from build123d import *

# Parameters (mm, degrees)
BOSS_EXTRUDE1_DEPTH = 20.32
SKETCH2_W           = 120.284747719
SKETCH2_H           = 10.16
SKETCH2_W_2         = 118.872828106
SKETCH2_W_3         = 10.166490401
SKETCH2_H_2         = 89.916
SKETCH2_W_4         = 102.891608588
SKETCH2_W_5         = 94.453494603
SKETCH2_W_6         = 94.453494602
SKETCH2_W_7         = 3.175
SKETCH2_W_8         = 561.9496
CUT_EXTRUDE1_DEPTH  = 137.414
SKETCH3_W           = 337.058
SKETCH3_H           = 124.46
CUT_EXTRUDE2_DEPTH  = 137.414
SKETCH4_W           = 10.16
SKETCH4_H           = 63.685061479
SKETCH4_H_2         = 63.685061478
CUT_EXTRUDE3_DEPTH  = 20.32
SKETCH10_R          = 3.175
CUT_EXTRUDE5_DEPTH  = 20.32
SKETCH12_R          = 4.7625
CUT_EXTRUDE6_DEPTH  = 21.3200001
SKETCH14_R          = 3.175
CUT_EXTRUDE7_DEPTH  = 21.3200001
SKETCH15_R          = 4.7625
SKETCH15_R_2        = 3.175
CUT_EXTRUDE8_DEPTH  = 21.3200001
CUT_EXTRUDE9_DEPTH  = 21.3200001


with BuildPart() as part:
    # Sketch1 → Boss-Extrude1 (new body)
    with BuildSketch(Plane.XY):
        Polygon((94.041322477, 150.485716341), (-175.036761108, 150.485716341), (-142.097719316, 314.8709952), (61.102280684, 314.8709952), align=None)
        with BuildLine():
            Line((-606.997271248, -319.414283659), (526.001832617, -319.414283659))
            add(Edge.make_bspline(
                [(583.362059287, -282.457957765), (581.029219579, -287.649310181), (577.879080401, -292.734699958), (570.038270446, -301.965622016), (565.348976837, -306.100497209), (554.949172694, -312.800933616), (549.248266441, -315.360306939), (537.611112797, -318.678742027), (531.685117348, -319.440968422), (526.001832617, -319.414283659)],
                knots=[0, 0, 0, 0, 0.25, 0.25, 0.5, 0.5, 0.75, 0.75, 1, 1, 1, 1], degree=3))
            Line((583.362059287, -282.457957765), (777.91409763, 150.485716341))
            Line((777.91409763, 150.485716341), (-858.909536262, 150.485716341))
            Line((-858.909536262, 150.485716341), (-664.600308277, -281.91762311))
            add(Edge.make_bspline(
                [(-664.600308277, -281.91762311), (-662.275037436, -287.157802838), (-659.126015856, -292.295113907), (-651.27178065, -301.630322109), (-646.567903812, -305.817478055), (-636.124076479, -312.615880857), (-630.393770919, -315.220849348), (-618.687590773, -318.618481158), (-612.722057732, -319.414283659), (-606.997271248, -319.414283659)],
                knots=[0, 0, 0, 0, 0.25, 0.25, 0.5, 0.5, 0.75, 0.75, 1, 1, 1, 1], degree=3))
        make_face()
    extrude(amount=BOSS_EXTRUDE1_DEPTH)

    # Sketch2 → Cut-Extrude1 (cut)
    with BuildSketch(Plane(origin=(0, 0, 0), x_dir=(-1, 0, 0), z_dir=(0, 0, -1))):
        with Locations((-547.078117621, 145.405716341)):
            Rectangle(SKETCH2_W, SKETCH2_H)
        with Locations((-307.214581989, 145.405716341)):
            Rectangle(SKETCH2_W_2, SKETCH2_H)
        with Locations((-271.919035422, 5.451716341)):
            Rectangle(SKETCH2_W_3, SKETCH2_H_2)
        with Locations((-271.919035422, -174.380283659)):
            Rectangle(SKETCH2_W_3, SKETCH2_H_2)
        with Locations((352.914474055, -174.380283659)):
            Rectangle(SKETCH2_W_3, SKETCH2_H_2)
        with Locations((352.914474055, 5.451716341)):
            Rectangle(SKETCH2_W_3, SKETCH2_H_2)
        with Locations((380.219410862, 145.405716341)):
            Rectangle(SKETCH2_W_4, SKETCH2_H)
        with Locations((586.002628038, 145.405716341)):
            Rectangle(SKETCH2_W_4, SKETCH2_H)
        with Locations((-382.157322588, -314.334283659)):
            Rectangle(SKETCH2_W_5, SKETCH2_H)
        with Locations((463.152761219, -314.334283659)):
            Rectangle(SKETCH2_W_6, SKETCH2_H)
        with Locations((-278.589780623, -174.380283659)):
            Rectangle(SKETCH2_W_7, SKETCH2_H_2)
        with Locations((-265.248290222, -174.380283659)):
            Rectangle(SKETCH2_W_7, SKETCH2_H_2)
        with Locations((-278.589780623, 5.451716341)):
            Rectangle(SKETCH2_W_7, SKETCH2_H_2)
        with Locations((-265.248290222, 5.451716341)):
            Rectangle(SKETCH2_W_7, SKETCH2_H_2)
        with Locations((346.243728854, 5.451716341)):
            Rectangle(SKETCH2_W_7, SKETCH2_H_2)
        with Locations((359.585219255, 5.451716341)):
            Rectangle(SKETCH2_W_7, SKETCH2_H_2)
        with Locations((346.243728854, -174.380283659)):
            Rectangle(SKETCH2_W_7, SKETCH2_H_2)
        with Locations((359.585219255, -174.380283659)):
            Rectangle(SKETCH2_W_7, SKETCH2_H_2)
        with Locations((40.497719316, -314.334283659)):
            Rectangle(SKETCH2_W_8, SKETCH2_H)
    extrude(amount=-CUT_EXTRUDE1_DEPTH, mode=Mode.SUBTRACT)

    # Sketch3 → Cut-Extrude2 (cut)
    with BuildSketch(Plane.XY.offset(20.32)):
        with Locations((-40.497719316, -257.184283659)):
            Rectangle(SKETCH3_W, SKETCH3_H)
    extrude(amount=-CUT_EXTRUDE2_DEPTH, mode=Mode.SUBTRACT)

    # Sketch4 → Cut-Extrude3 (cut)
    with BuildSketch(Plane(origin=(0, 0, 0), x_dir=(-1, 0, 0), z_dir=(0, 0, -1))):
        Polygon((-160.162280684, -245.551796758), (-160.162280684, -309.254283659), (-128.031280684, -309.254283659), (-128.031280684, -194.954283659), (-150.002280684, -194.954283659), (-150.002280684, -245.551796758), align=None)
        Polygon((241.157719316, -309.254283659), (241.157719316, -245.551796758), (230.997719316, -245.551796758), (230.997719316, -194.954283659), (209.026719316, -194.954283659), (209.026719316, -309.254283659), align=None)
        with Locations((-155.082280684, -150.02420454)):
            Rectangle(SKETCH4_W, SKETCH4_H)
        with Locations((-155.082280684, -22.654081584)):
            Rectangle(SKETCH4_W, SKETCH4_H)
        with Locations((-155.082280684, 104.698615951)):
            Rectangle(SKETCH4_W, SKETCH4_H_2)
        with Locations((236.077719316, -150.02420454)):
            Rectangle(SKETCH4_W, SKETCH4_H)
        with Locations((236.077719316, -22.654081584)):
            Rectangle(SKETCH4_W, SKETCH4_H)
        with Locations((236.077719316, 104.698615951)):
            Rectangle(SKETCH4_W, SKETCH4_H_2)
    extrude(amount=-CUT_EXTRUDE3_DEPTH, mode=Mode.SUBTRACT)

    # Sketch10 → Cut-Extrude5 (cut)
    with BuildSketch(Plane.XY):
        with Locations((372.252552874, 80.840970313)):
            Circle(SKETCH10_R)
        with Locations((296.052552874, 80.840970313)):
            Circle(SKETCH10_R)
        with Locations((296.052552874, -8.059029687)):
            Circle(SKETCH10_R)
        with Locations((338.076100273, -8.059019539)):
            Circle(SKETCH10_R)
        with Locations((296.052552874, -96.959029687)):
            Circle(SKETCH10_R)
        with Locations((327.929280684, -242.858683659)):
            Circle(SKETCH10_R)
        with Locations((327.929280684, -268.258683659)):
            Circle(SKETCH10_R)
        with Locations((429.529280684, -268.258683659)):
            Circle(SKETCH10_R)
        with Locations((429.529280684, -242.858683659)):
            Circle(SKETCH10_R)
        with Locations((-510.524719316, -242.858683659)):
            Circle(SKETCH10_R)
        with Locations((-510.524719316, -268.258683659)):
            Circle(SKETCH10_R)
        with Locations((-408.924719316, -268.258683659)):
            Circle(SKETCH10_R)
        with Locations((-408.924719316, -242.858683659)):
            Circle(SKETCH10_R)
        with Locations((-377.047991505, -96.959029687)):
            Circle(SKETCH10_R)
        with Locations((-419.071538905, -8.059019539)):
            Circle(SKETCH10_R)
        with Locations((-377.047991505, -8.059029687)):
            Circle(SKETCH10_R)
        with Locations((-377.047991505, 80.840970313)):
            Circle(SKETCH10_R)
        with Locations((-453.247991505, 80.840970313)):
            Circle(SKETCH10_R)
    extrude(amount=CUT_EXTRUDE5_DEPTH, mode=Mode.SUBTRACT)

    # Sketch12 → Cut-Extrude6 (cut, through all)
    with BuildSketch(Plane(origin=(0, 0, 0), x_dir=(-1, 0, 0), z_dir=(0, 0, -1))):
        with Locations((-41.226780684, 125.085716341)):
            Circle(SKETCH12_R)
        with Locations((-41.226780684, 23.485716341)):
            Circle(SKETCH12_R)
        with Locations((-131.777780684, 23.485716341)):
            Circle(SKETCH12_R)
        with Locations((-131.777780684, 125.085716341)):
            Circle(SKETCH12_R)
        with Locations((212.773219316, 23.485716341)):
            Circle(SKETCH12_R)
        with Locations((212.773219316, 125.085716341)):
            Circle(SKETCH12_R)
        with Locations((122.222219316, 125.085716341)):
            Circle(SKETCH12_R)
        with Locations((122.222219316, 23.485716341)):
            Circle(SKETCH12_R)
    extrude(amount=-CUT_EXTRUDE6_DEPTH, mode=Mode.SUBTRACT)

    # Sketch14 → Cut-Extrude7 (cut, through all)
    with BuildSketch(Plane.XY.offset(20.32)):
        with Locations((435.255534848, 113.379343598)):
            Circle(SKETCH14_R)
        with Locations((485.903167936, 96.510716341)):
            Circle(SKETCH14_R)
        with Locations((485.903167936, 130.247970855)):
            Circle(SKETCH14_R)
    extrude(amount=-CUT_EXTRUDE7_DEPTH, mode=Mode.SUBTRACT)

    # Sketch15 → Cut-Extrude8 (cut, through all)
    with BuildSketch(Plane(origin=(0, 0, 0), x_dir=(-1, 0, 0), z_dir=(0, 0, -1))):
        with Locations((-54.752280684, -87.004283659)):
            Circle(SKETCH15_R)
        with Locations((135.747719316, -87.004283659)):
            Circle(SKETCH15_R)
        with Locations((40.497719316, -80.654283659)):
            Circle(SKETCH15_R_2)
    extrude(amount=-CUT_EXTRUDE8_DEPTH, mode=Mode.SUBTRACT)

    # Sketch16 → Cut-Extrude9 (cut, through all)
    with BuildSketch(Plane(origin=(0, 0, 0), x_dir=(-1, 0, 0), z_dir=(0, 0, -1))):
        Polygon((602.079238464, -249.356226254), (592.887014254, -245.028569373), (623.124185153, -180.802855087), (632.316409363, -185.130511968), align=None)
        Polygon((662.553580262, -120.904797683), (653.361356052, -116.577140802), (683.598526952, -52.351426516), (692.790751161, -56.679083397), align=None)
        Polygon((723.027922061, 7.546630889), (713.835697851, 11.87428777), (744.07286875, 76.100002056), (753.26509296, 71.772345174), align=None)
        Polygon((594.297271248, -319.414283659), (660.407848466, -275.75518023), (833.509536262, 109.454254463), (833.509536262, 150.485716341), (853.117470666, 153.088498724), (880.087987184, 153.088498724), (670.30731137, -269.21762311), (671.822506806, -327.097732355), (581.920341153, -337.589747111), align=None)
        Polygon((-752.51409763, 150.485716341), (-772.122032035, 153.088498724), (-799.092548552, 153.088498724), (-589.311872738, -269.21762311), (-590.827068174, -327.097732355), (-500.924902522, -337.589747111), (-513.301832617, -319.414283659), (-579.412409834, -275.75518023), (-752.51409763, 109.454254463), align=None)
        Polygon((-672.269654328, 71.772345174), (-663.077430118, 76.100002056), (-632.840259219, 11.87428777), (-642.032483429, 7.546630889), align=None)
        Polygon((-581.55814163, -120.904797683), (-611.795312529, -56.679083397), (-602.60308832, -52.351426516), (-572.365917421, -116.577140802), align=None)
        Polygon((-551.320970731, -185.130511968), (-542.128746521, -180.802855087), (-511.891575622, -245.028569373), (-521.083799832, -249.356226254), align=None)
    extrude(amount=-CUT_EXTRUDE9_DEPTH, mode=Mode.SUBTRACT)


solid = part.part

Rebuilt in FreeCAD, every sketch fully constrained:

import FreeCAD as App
import Part
import Sketcher

V = App.Vector
Q = App.Units.Quantity


def add_polygon(sketch, points):
    """Adds a closed chain of lines whose ends are joined by coincident constraints."""
    first, n = sketch.GeometryCount, len(points)
    for a, b in zip(points, points[1:] + points[:1]):
        sketch.addGeometry(Part.LineSegment(App.Vector(*a, 0), App.Vector(*b, 0)), False)
    for i in range(n):
        sketch.addConstraint(Sketcher.Constraint("Coincident", first + i, 2, first + (i + 1) % n, 1))

doc = App.newDocument("Part")
body = doc.addObject("PartDesign::Body", "Body")

# Sketch on XY plane
sketch1 = body.newObject("Sketcher::SketchObject", "Sketch")
sketch1.AttachmentSupport = (doc.getObject("XY_Plane"), [""])
sketch1.MapMode = "FlatFace"
sketch1.addGeometry([
    Part.LineSegment(V(-142.097719, 314.870995, 0), V(-175.036761, 150.485716, 0)),  # 0
    Part.LineSegment(V(-175.036761, 150.485716, 0), V(-858.909536, 150.485716, 0)),  # 1
    Part.LineSegment(V(-858.909536, 150.485716, 0), V(-664.600308, -281.917623, 0)),  # 2
    Part.BSplineCurve([V(-664.600308, -281.917623, 0), V(-662.275037, -287.157803, 0), V(-659.126016, -292.295114, 0), V(-651.271781, -301.630322, 0), V(-646.567904, -305.817478, 0), V(-636.124076, -312.615881, 0), V(-630.393771, -315.220849, 0), V(-618.687591, -318.618481, 0), V(-612.722058, -319.414284, 0), V(-606.997271, -319.414284, 0)], [4, 2, 2, 2, 4], [0, 0.25, 0.5, 0.75, 1], False, 3, [1, 1, 1, 1, 1, 1, 1, 1, 1, 1], False),  # 3
    Part.LineSegment(V(-606.997271, -319.414284, 0), V(526.001833, -319.414284, 0)),  # 4
    Part.BSplineCurve([V(583.362059, -282.457958, 0), V(581.02922, -287.64931, 0), V(577.87908, -292.7347, 0), V(570.03827, -301.965622, 0), V(565.348977, -306.100497, 0), V(554.949173, -312.800934, 0), V(549.248266, -315.360307, 0), V(537.611113, -318.678742, 0), V(531.685117, -319.440968, 0), V(526.001833, -319.414284, 0)], [4, 2, 2, 2, 4], [0, 0.25, 0.5, 0.75, 1], False, 3, [1, 1, 1, 1, 1, 1, 1, 1, 1, 1], False),  # 5
    Part.LineSegment(V(583.362059, -282.457958, 0), V(777.914098, 150.485716, 0)),  # 6
    Part.LineSegment(V(777.914098, 150.485716, 0), V(94.041322, 150.485716, 0)),  # 7
    Part.LineSegment(V(94.041322, 150.485716, 0), V(61.102281, 314.870995, 0)),  # 8
    Part.LineSegment(V(61.102281, 314.870995, 0), V(-142.097719, 314.870995, 0)),  # 9
], False)
sketch1.addConstraint([
    Sketcher.Constraint("Block", 3),
    Sketcher.Constraint("Block", 5),
    Sketcher.Constraint("Coincident", 0, 2, 1, 1),
    Sketcher.Constraint("Coincident", 1, 2, 2, 1),
    Sketcher.Constraint("Coincident", 2, 2, 3, 1),
    Sketcher.Constraint("Coincident", 3, 2, 4, 1),
    Sketcher.Constraint("Coincident", 4, 2, 5, 2),
    Sketcher.Constraint("Coincident", 5, 1, 6, 1),
    Sketcher.Constraint("Coincident", 6, 2, 7, 1),
    Sketcher.Constraint("Coincident", 7, 2, 8, 1),
    Sketcher.Constraint("Coincident", 8, 2, 9, 1),
    Sketcher.Constraint("Coincident", 9, 2, 0, 1),
    Sketcher.Constraint("Horizontal", 1),
    Sketcher.Constraint("Horizontal", 7),
    Sketcher.Constraint("Horizontal", 9),
    Sketcher.Constraint("Horizontal", 1, 2, 6, 2),
    Sketcher.Constraint("Equal", 1, 7),
    Sketcher.Constraint("Equal", 0, 8),
    Sketcher.Constraint("DistanceX", 9, 2, 9, 1, Q("8 in")),
    Sketcher.Constraint("DistanceY", 4, 2, 0, 2, Q("18.5 in")),
    Sketcher.Constraint("DistanceX", 1, 2, 1, 1, Q("683.872775 mm")),
    Sketcher.Constraint("DistanceX", 0, 2, -1, 1, Q("175.036761 mm")),
    Sketcher.Constraint("DistanceX", -1, 1, 8, 2, Q("61.102281 mm")),
    Sketcher.Constraint("DistanceY", 7, 2, 8, 2, Q("164.385279 mm")),
])
pad1 = body.newObject("PartDesign::Pad", "Pad")
pad1.Profile = sketch1
pad1.Length = Q("0.8 in")

# Sketch on XY plane
sketch2 = body.newObject("Sketcher::SketchObject", "Sketch001")
sketch2.AttachmentSupport = (doc.getObject("XY_Plane"), [""])
sketch2.MapMode = "FlatFace"
add_polygon(sketch2, [(607, 150), (607, 140), (487, 140), (487, 150)])  # lines 0-3
add_polygon(sketch2, [(367, 150), (367, 140), (248, 140), (248, 150)])  # lines 4-7
add_polygon(sketch2, [(280, 50), (280, -40), (264, -40), (264, 50)])  # lines 8-11
add_polygon(sketch2, [(280, -129), (280, -219), (264, -219), (264, -129)])  # lines 12-15
add_polygon(sketch2, [(-345, -129), (-345, -219), (-361, -219), (-361, -129)])  # lines 16-19
add_polygon(sketch2, [(-345, 50), (-345, -40), (-361, -40), (-361, 50)])  # lines 20-23
add_polygon(sketch2, [(-329, 150), (-329, 140), (-432, 140), (-432, 150)])  # lines 24-27
add_polygon(sketch2, [(-535, 150), (-535, 140), (-637, 140), (-637, 150)])  # lines 28-31
add_polygon(sketch2, [(429, -309), (429, -319), (335, -319), (335, -309)])  # lines 32-35
add_polygon(sketch2, [(-416, -309), (-416, -319), (-510, -319), (-510, -309)])  # lines 36-39
add_polygon(sketch2, [(240, -309), (240, -319), (-321, -319), (-321, -309)])  # lines 40-43
sketch2.addConstraint([
    Sketcher.Constraint("Vertical", 0),
    Sketcher.Constraint("Horizontal", 1),
    Sketcher.Constraint("Vertical", 2),
    Sketcher.Constraint("Horizontal", 3),
    Sketcher.Constraint("Vertical", 4),
    Sketcher.Constraint("Horizontal", 5),
    Sketcher.Constraint("Vertical", 6),
    Sketcher.Constraint("Horizontal", 7),
    Sketcher.Constraint("Vertical", 8),
    Sketcher.Constraint("Horizontal", 9),
    Sketcher.Constraint("Vertical", 10),
    Sketcher.Constraint("Horizontal", 11),
    Sketcher.Constraint("Vertical", 12),
    Sketcher.Constraint("Horizontal", 13),
    Sketcher.Constraint("Vertical", 14),
    Sketcher.Constraint("Horizontal", 15),
    Sketcher.Constraint("Vertical", 16),
    Sketcher.Constraint("Horizontal", 17),
    Sketcher.Constraint("Vertical", 18),
    Sketcher.Constraint("Horizontal", 19),
    Sketcher.Constraint("Vertical", 20),
    Sketcher.Constraint("Horizontal", 21),
    Sketcher.Constraint("Vertical", 22),
    Sketcher.Constraint("Horizontal", 23),
    Sketcher.Constraint("Vertical", 24),
    Sketcher.Constraint("Horizontal", 25),
    Sketcher.Constraint("Vertical", 26),
    Sketcher.Constraint("Horizontal", 27),
    Sketcher.Constraint("Vertical", 28),
    Sketcher.Constraint("Horizontal", 29),
    Sketcher.Constraint("Vertical", 30),
    Sketcher.Constraint("Horizontal", 31),
    Sketcher.Constraint("Vertical", 32),
    Sketcher.Constraint("Horizontal", 33),
    Sketcher.Constraint("Vertical", 34),
    Sketcher.Constraint("Horizontal", 35),
    Sketcher.Constraint("Vertical", 36),
    Sketcher.Constraint("Horizontal", 37),
    Sketcher.Constraint("Vertical", 38),
    Sketcher.Constraint("Horizontal", 39),
    Sketcher.Constraint("Vertical", 40),
    Sketcher.Constraint("Horizontal", 41),
    Sketcher.Constraint("Vertical", 42),
    Sketcher.Constraint("Horizontal", 43),
    Sketcher.Constraint("Horizontal", 1, 2, 4, 2),
    Sketcher.Constraint("Horizontal", 3, 2, 6, 2),
    Sketcher.Constraint("Horizontal", 13, 2, 16, 2),
    Sketcher.Constraint("Horizontal", 15, 2, 18, 2),
    Sketcher.Constraint("Horizontal", 9, 2, 20, 2),
    Sketcher.Constraint("Horizontal", 11, 2, 22, 2),
    Sketcher.Constraint("Horizontal", 5, 2, 24, 2),
    Sketcher.Constraint("Horizontal", 7, 2, 26, 2),
    Sketcher.Constraint("Horizontal", 25, 2, 28, 2),
    Sketcher.Constraint("Horizontal", 27, 2, 30, 2),
    Sketcher.Constraint("Horizontal", 33, 2, 36, 2),
    Sketcher.Constraint("Horizontal", 35, 2, 38, 2),
    Sketcher.Constraint("Horizontal", 37, 2, 40, 2),
    Sketcher.Constraint("Horizontal", 39, 2, 42, 2),
    Sketcher.Constraint("Vertical", 11, 2, 12, 2),
    Sketcher.Constraint("Vertical", 10, 2, 13, 2),
    Sketcher.Constraint("Vertical", 19, 2, 20, 2),
    Sketcher.Constraint("Vertical", 18, 2, 21, 2),
    Sketcher.Constraint("Equal", 15, 17),
    Sketcher.Constraint("Equal", 27, 29),
    Sketcher.Constraint("Equal", 35, 37),
    Sketcher.Constraint("Equal", 10, 12),
    Sketcher.Constraint("Equal", 30, 32),
    Sketcher.Constraint("DistanceY", 0, 2, 0, 1, Q("0.4 in")),
    Sketcher.Constraint("DistanceY", 8, 2, 8, 1, Q("3.54 in")),
    Sketcher.Constraint("DistanceX", 41, 2, 41, 1, Q("22.124 in")),
    Sketcher.Constraint("DistanceY", 8, 2, 5, 2, Q("7.08 in")),
    Sketcher.Constraint("DistanceY", 12, 2, 8, 2, Q("7.08 in")),
    Sketcher.Constraint("DistanceX", 17, 2, 12, 2, Q("25.25 in")),
    Sketcher.Constraint("DistanceY", 32, 2, 12, 2, Q("3.94 in")),
    Sketcher.Constraint("DistanceX", 40, 2, 12, 2, Q("1.563 in")),
    Sketcher.Constraint("DistanceX", 5, 2, 9, 2, Q("0.6253001 in")),
    Sketcher.Constraint("DistanceX", 23, 2, 24, 2, Q("0.6253001 in")),
    Sketcher.Constraint("DistanceX", 5, 2, 5, 1, Q("118.872828 mm")),
    Sketcher.Constraint("DistanceX", 9, 2, 9, 1, Q("16.51649 mm")),
    Sketcher.Constraint("DistanceX", 25, 2, 25, 1, Q("102.891609 mm")),
    Sketcher.Constraint("DistanceX", 1, 2, 1, 1, Q("120.284748 mm")),
    Sketcher.Constraint("DistanceX", 33, 2, 33, 1, Q("94.453495 mm")),
    Sketcher.Constraint("DistanceX", -1, 1, 0, 2, Q("607.220491 mm")),
    Sketcher.Constraint("DistanceX", -1, 1, 8, 2, Q("280.177281 mm")),
    Sketcher.Constraint("DistanceX", -1, 1, 32, 2, Q("429.38407 mm")),
    Sketcher.Constraint("DistanceX", 37, 2, -1, 1, Q("510.379509 mm")),
    Sketcher.Constraint("DistanceX", 28, 2, 25, 2, Q("102.891609 mm")),
    Sketcher.Constraint("DistanceY", -1, 1, 0, 2, Q("140.325716 mm")),
])
pocket1 = body.newObject("PartDesign::Pocket", "Pocket")
pocket1.Profile = sketch2
pocket1.Length = Q("5.41 in")
pocket1.Reversed = True

# Sketch on XY plane
sketch3 = body.newObject("Sketcher::SketchObject", "Sketch002")
sketch3.AttachmentSupport = (doc.getObject("XY_Plane"), [""])
sketch3.MapMode = "FlatFace"
sketch3.AttachmentOffset = App.Placement(V(0, 0, 0.8 * 25.4), App.Rotation())
add_polygon(sketch3, [(-209, -195), (-209, -319), (128, -319), (128, -195)])  # lines 0-3
sketch3.addConstraint([
    Sketcher.Constraint("Vertical", 0),
    Sketcher.Constraint("Horizontal", 1),
    Sketcher.Constraint("Vertical", 2),
    Sketcher.Constraint("Horizontal", 3),
    Sketcher.Constraint("DistanceY", 0, 2, 0, 1, Q("4.9 in")),
    Sketcher.Constraint("DistanceX", 1, 1, 1, 2, Q("13.27 in")),
    Sketcher.Constraint("DistanceX", 0, 2, -1, 1, Q("209.026719 mm")),
    Sketcher.Constraint("DistanceY", 0, 2, -1, 1, Q("319.414284 mm")),
])
pocket2 = body.newObject("PartDesign::Pocket", "Pocket001")
pocket2.Profile = sketch3
pocket2.Length = Q("5.41 in")

# Sketch on XY plane
sketch4 = body.newObject("Sketcher::SketchObject", "Sketch003")
sketch4.AttachmentSupport = (doc.getObject("XY_Plane"), [""])
sketch4.MapMode = "FlatFace"
add_polygon(sketch4, [(160, -246), (160, -309), (128, -309), (128, -195), (150, -195), (150, -246)])  # lines 0-5
add_polygon(sketch4, [(-241, -309), (-241, -246), (-231, -246), (-231, -195), (-209, -195), (-209, -309)])  # lines 6-11
add_polygon(sketch4, [(160, -118), (160, -182), (150, -182), (150, -118)])  # lines 12-15
add_polygon(sketch4, [(160, 9), (160, -54), (150, -54), (150, 9)])  # lines 16-19
add_polygon(sketch4, [(160, 137), (160, 73), (150, 73), (150, 137)])  # lines 20-23
add_polygon(sketch4, [(-231, -118), (-231, -182), (-241, -182), (-241, -118)])  # lines 24-27
add_polygon(sketch4, [(-231, 9), (-231, -54), (-241, -54), (-241, 9)])  # lines 28-31
add_polygon(sketch4, [(-231, 137), (-231, 73), (-241, 73), (-241, 137)])  # lines 32-35
sketch4.addConstraint([
    Sketcher.Constraint("Vertical", 0),
    Sketcher.Constraint("Horizontal", 1),
    Sketcher.Constraint("Vertical", 2),
    Sketcher.Constraint("Horizontal", 3),
    Sketcher.Constraint("Vertical", 4),
    Sketcher.Constraint("Horizontal", 5),
    Sketcher.Constraint("Vertical", 6),
    Sketcher.Constraint("Horizontal", 7),
    Sketcher.Constraint("Vertical", 8),
    Sketcher.Constraint("Horizontal", 9),
    Sketcher.Constraint("Vertical", 10),
    Sketcher.Constraint("Horizontal", 11),
    Sketcher.Constraint("Vertical", 12),
    Sketcher.Constraint("Horizontal", 13),
    Sketcher.Constraint("Vertical", 14),
    Sketcher.Constraint("Horizontal", 15),
    Sketcher.Constraint("Vertical", 16),
    Sketcher.Constraint("Horizontal", 17),
    Sketcher.Constraint("Vertical", 18),
    Sketcher.Constraint("Horizontal", 19),
    Sketcher.Constraint("Vertical", 20),
    Sketcher.Constraint("Horizontal", 21),
    Sketcher.Constraint("Vertical", 22),
    Sketcher.Constraint("Horizontal", 23),
    Sketcher.Constraint("Vertical", 24),
    Sketcher.Constraint("Horizontal", 25),
    Sketcher.Constraint("Vertical", 26),
    Sketcher.Constraint("Horizontal", 27),
    Sketcher.Constraint("Vertical", 28),
    Sketcher.Constraint("Horizontal", 29),
    Sketcher.Constraint("Vertical", 30),
    Sketcher.Constraint("Horizontal", 31),
    Sketcher.Constraint("Vertical", 32),
    Sketcher.Constraint("Horizontal", 33),
    Sketcher.Constraint("Vertical", 34),
    Sketcher.Constraint("Horizontal", 35),
    Sketcher.Constraint("Horizontal", 5, 2, 6, 2),
    Sketcher.Constraint("Horizontal", 3, 2, 8, 2),
    Sketcher.Constraint("Horizontal", 1, 2, 10, 2),
    Sketcher.Constraint("Horizontal", 13, 2, 24, 2),
    Sketcher.Constraint("Horizontal", 15, 2, 26, 2),
    Sketcher.Constraint("Horizontal", 17, 2, 28, 2),
    Sketcher.Constraint("Horizontal", 19, 2, 30, 2),
    Sketcher.Constraint("Horizontal", 21, 2, 32, 2),
    Sketcher.Constraint("Horizontal", 23, 2, 34, 2),
    Sketcher.Constraint("Vertical", 5, 2, 12, 2),
    Sketcher.Constraint("Vertical", 4, 2, 13, 2),
    Sketcher.Constraint("Vertical", 15, 2, 16, 2),
    Sketcher.Constraint("Vertical", 14, 2, 17, 2),
    Sketcher.Constraint("Vertical", 19, 2, 20, 2),
    Sketcher.Constraint("Vertical", 18, 2, 21, 2),
    Sketcher.Constraint("Vertical", 8, 2, 24, 2),
    Sketcher.Constraint("Vertical", 11, 2, 25, 2),
    Sketcher.Constraint("Vertical", 27, 2, 28, 2),
    Sketcher.Constraint("Vertical", 26, 2, 29, 2),
    Sketcher.Constraint("Vertical", 31, 2, 32, 2),
    Sketcher.Constraint("Vertical", 30, 2, 33, 2),
    Sketcher.Constraint("Equal", 5, 7),
    Sketcher.Constraint("Equal", 3, 9),
    Sketcher.Constraint("Equal", 14, 16),
    Sketcher.Constraint("Equal", 18, 20),
    Sketcher.Constraint("DistanceX", 5, 1, 5, 2, Q("0.4 in")),
    Sketcher.Constraint("DistanceY", 2, 1, 2, 2, Q("4.5 in")),
    Sketcher.Constraint("DistanceX", 7, 2, 4, 2, Q("15 in")),
    Sketcher.Constraint("DistanceX", 1, 2, 1, 1, Q("1.265 in")),
    Sketcher.Constraint("DistanceY", 19, 2, 20, 2, Q("2.5065998 in")),
    Sketcher.Constraint("DistanceY", 12, 2, 12, 1, Q("63.685061 mm")),
    Sketcher.Constraint("DistanceY", 0, 2, 0, 1, Q("63.702487 mm")),
    Sketcher.Constraint("DistanceX", -1, 1, 0, 2, Q("160.162281 mm")),
    Sketcher.Constraint("DistanceY", -1, 1, 18, 2, Q("9.188449 mm")),
    Sketcher.Constraint("DistanceY", 3, 2, 12, 2, Q("13.087548 mm")),
    Sketcher.Constraint("DistanceY", 15, 2, 16, 2, Q("63.685061 mm")),
])
pocket3 = body.newObject("PartDesign::Pocket", "Pocket002")
pocket3.Profile = sketch4
pocket3.Length = Q("0.8 in")
pocket3.Reversed = True

# Sketch on XY plane
sketch5 = body.newObject("Sketcher::SketchObject", "Sketch004")
sketch5.AttachmentSupport = (doc.getObject("XY_Plane"), [""])
sketch5.MapMode = "FlatFace"
sketch5.addGeometry([
    Part.Circle(V(372.3, 80.8, 0), V(0, 0, 1), 3.2),  # 0
    Part.Circle(V(296.1, 80.8, 0), V(0, 0, 1), 3.2),  # 1
    Part.Circle(V(296.1, -8.1, 0), V(0, 0, 1), 3.2),  # 2
    Part.Circle(V(338.1, -8.1, 0), V(0, 0, 1), 3.2),  # 3
    Part.Circle(V(296.1, -97, 0), V(0, 0, 1), 3.2),  # 4
    Part.Circle(V(327.9, -242.9, 0), V(0, 0, 1), 3.2),  # 5
    Part.Circle(V(327.9, -268.3, 0), V(0, 0, 1), 3.2),  # 6
    Part.Circle(V(429.5, -268.3, 0), V(0, 0, 1), 3.2),  # 7
    Part.Circle(V(429.5, -242.9, 0), V(0, 0, 1), 3.2),  # 8
    Part.Circle(V(-510.5, -242.9, 0), V(0, 0, 1), 3.2),  # 9
    Part.Circle(V(-510.5, -268.3, 0), V(0, 0, 1), 3.2),  # 10
    Part.Circle(V(-408.9, -268.3, 0), V(0, 0, 1), 3.2),  # 11
    Part.Circle(V(-408.9, -242.9, 0), V(0, 0, 1), 3.2),  # 12
    Part.Circle(V(-377, -97, 0), V(0, 0, 1), 3.2),  # 13
    Part.Circle(V(-419.1, -8.1, 0), V(0, 0, 1), 3.2),  # 14
    Part.Circle(V(-377, -8.1, 0), V(0, 0, 1), 3.2),  # 15
    Part.Circle(V(-377, 80.8, 0), V(0, 0, 1), 3.2),  # 16
    Part.Circle(V(-453.2, 80.8, 0), V(0, 0, 1), 3.2),  # 17
], False)
sketch5.addConstraint([
    Sketcher.Constraint("Equal", 0, 1),
    Sketcher.Constraint("Equal", 1, 2),
    Sketcher.Constraint("Equal", 2, 3),
    Sketcher.Constraint("Equal", 3, 4),
    Sketcher.Constraint("Equal", 4, 5),
    Sketcher.Constraint("Equal", 5, 6),
    Sketcher.Constraint("Equal", 6, 7),
    Sketcher.Constraint("Equal", 7, 8),
    Sketcher.Constraint("Equal", 8, 9),
    Sketcher.Constraint("Equal", 9, 10),
    Sketcher.Constraint("Equal", 10, 11),
    Sketcher.Constraint("Equal", 11, 12),
    Sketcher.Constraint("Equal", 12, 13),
    Sketcher.Constraint("Equal", 13, 14),
    Sketcher.Constraint("Equal", 14, 15),
    Sketcher.Constraint("Equal", 15, 16),
    Sketcher.Constraint("Equal", 16, 17),
    Sketcher.Constraint("Horizontal", 0, 3, 1, 3),
    Sketcher.Constraint("Horizontal", 6, 3, 7, 3),
    Sketcher.Constraint("Horizontal", 5, 3, 8, 3),
    Sketcher.Constraint("Horizontal", 8, 3, 9, 3),
    Sketcher.Constraint("Horizontal", 7, 3, 10, 3),
    Sketcher.Constraint("Horizontal", 10, 3, 11, 3),
    Sketcher.Constraint("Horizontal", 9, 3, 12, 3),
    Sketcher.Constraint("Horizontal", 4, 3, 13, 3),
    Sketcher.Constraint("Horizontal", 3, 3, 14, 3),
    Sketcher.Constraint("Horizontal", 2, 3, 15, 3),
    Sketcher.Constraint("Horizontal", 1, 3, 16, 3),
    Sketcher.Constraint("Horizontal", 16, 3, 17, 3),
    Sketcher.Constraint("Vertical", 1, 3, 2, 3),
    Sketcher.Constraint("Vertical", 2, 3, 4, 3),
    Sketcher.Constraint("Vertical", 5, 3, 6, 3),
    Sketcher.Constraint("Vertical", 7, 3, 8, 3),
    Sketcher.Constraint("Vertical", 9, 3, 10, 3),
    Sketcher.Constraint("Vertical", 11, 3, 12, 3),
    Sketcher.Constraint("Vertical", 13, 3, 15, 3),
    Sketcher.Constraint("Vertical", 15, 3, 16, 3),
    Sketcher.Constraint("Diameter", 0, Q("0.25 in")),
    Sketcher.Constraint("DistanceX", 1, 3, 0, 3, Q("3 in")),
    Sketcher.Constraint("DistanceY", 4, 3, 1, 3, Q("7 in")),
    Sketcher.Constraint("DistanceY", 6, 3, 5, 3, Q("1 in")),
    Sketcher.Constraint("DistanceX", 6, 3, 7, 3, Q("4 in")),
    Sketcher.Constraint("DistanceX", 10, 3, 11, 3, Q("4 in")),
    Sketcher.Constraint("DistanceX", 17, 3, 16, 3, Q("3 in")),
    Sketcher.Constraint("DistanceY", 2, 3, 1, 3, Q("3.5 in")),
    Sketcher.Constraint("DistanceX", 9, 3, 5, 3, Q("33.01 in")),
    Sketcher.Constraint("DistanceX", -1, 1, 3, 3, Q("338.0761 mm")),
    Sketcher.Constraint("DistanceY", -1, 1, 0, 3, Q("80.84097 mm")),
    Sketcher.Constraint("DistanceY", 3, 3, -1, 1, Q("8.05902 mm")),
    Sketcher.Constraint("DistanceX", -1, 1, 5, 3, Q("327.929281 mm")),
    Sketcher.Constraint("DistanceX", 13, 3, -1, 1, Q("377.047992 mm")),
    Sketcher.Constraint("DistanceX", 14, 3, -1, 1, Q("419.071539 mm")),
    Sketcher.Constraint("DistanceX", -1, 1, 0, 3, Q("372.252553 mm")),
    Sketcher.Constraint("DistanceY", 5, 3, -1, 1, Q("242.858684 mm")),
])
pocket4 = body.newObject("PartDesign::Pocket", "Pocket003")
pocket4.Profile = sketch5
pocket4.Length = Q("0.8 in")
pocket4.Reversed = True

# Sketch on XY plane
sketch6 = body.newObject("Sketcher::SketchObject", "Sketch005")
sketch6.AttachmentSupport = (doc.getObject("XY_Plane"), [""])
sketch6.MapMode = "FlatFace"
sketch6.addGeometry([
    Part.Circle(V(41.2, 125.1, 0), V(0, 0, 1), 4.8),  # 0
    Part.Circle(V(41.2, 23.5, 0), V(0, 0, 1), 4.8),  # 1
    Part.Circle(V(131.8, 23.5, 0), V(0, 0, 1), 4.8),  # 2
    Part.Circle(V(131.8, 125.1, 0), V(0, 0, 1), 4.8),  # 3
    Part.Circle(V(-212.8, 23.5, 0), V(0, 0, 1), 4.8),  # 4
    Part.Circle(V(-212.8, 125.1, 0), V(0, 0, 1), 4.8),  # 5
    Part.Circle(V(-122.2, 125.1, 0), V(0, 0, 1), 4.8),  # 6
    Part.Circle(V(-122.2, 23.5, 0), V(0, 0, 1), 4.8),  # 7
], False)
sketch6.addConstraint([
    Sketcher.Constraint("Equal", 0, 1),
    Sketcher.Constraint("Equal", 1, 2),
    Sketcher.Constraint("Equal", 2, 3),
    Sketcher.Constraint("Equal", 3, 4),
    Sketcher.Constraint("Equal", 4, 5),
    Sketcher.Constraint("Equal", 5, 6),
    Sketcher.Constraint("Equal", 6, 7),
    Sketcher.Constraint("Horizontal", 1, 3, 2, 3),
    Sketcher.Constraint("Horizontal", 0, 3, 3, 3),
    Sketcher.Constraint("Horizontal", 2, 3, 4, 3),
    Sketcher.Constraint("Horizontal", 3, 3, 5, 3),
    Sketcher.Constraint("Horizontal", 5, 3, 6, 3),
    Sketcher.Constraint("Horizontal", 4, 3, 7, 3),
    Sketcher.Constraint("Vertical", 0, 3, 1, 3),
    Sketcher.Constraint("Vertical", 2, 3, 3, 3),
    Sketcher.Constraint("Vertical", 4, 3, 5, 3),
    Sketcher.Constraint("Vertical", 6, 3, 7, 3),
    Sketcher.Constraint("Diameter", 0, Q("0.375 in")),
    Sketcher.Constraint("DistanceY", 1, 3, 0, 3, Q("4 in")),
    Sketcher.Constraint("DistanceX", 4, 3, 1, 3, Q("10 in")),
    Sketcher.Constraint("DistanceX", 6, 3, 3, 3, Q("10 in")),
    Sketcher.Constraint("DistanceX", 1, 3, 2, 3, Q("3.565 in")),
    Sketcher.Constraint("DistanceX", -1, 1, 0, 3, Q("41.226781 mm")),
    Sketcher.Constraint("DistanceY", -1, 1, 0, 3, Q("125.085716 mm")),
])
pocket5 = body.newObject("PartDesign::Pocket", "Pocket004")
pocket5.Profile = sketch6
pocket5.Type = "ThroughAll"
pocket5.Reversed = True

# Sketch on XY plane
sketch7 = body.newObject("Sketcher::SketchObject", "Sketch006")
sketch7.AttachmentSupport = (doc.getObject("XY_Plane"), [""])
sketch7.MapMode = "FlatFace"
sketch7.AttachmentOffset = App.Placement(V(0, 0, 0.8 * 25.4), App.Rotation())
sketch7.addGeometry([
    Part.Circle(V(435.3, 113.4, 0), V(0, 0, 1), 3.2),
    Part.Circle(V(485.9, 96.5, 0), V(0, 0, 1), 3.2),
    Part.Circle(V(485.9, 130.2, 0), V(0, 0, 1), 3.2),
], False)
sketch7.addConstraint([
    Sketcher.Constraint("Equal", 0, 1),
    Sketcher.Constraint("Equal", 1, 2),
    Sketcher.Constraint("Vertical", 1, 3, 2, 3),
    Sketcher.Constraint("Diameter", 0, Q("0.25 in")),
    Sketcher.Constraint("DistanceY", -1, 1, 2, 3, Q("130.247971 mm")),
    Sketcher.Constraint("DistanceX", -1, 1, 0, 3, Q("435.255535 mm")),
    Sketcher.Constraint("DistanceY", -1, 1, 0, 3, Q("113.379344 mm")),
    Sketcher.Constraint("DistanceX", -1, 1, 1, 3, Q("485.903168 mm")),
    Sketcher.Constraint("DistanceY", -1, 1, 1, 3, Q("96.510716 mm")),
])
pocket6 = body.newObject("PartDesign::Pocket", "Pocket005")
pocket6.Profile = sketch7
pocket6.Type = "ThroughAll"

# Sketch on XY plane
sketch8 = body.newObject("Sketcher::SketchObject", "Sketch007")
sketch8.AttachmentSupport = (doc.getObject("XY_Plane"), [""])
sketch8.MapMode = "FlatFace"
sketch8.addGeometry([
    Part.Circle(V(54.8, -87, 0), V(0, 0, 1), 4.8),
    Part.Circle(V(-135.7, -87, 0), V(0, 0, 1), 4.8),
    Part.Circle(V(-40.5, -80.7, 0), V(0, 0, 1), 3.2),
], False)
sketch8.addConstraint([
    Sketcher.Constraint("Equal", 0, 1),
    Sketcher.Constraint("Horizontal", 0, 3, 1, 3),
    Sketcher.Constraint("Diameter", 2, Q("0.25 in")),
    Sketcher.Constraint("Diameter", 0, Q("0.375 in")),
    Sketcher.Constraint("DistanceX", 1, 3, 0, 3, Q("7.5 in")),
    Sketcher.Constraint("DistanceX", 2, 3, 0, 3, Q("3.75 in")),
    Sketcher.Constraint("DistanceY", 0, 3, 2, 3, Q("0.25 in")),
    Sketcher.Constraint("DistanceX", -1, 1, 0, 3, Q("54.752281 mm")),
    Sketcher.Constraint("DistanceY", 0, 3, -1, 1, Q("87.004284 mm")),
])
pocket7 = body.newObject("PartDesign::Pocket", "Pocket006")
pocket7.Profile = sketch8
pocket7.Type = "ThroughAll"
pocket7.Reversed = True

# Sketch on XY plane
sketch9 = body.newObject("Sketcher::SketchObject", "Sketch008")
sketch9.AttachmentSupport = (doc.getObject("XY_Plane"), [""])
sketch9.MapMode = "FlatFace"
add_polygon(sketch9, [(-593, -245), (-602, -249), (-632, -185), (-623, -181)])  # lines 0-3
add_polygon(sketch9, [(-653, -117), (-663, -121), (-693, -57), (-684, -52)])  # lines 4-7
add_polygon(sketch9, [(-714, 12), (-723, 8), (-753, 72), (-744, 76)])  # lines 8-11
add_polygon(sketch9, [(-660, -276), (-594, -319), (-582, -338), (-672, -327), (-670, -269), (-880, 153), (-853, 153), (-834, 150), (-834, 109)])  # lines 12-20
add_polygon(sketch9, [(753, 150), (772, 153), (799, 153), (589, -269), (591, -327), (501, -338), (513, -319), (579, -276), (753, 109)])  # lines 21-29
add_polygon(sketch9, [(663, 76), (672, 72), (642, 8), (633, 12)])  # lines 30-33
add_polygon(sketch9, [(612, -57), (582, -121), (572, -117), (603, -52)])  # lines 34-37
add_polygon(sketch9, [(542, -181), (551, -185), (521, -249), (512, -245)])  # lines 38-41
sketch9.addConstraint([
    Sketcher.Constraint("Horizontal", 17),
    Sketcher.Constraint("Vertical", 19),
    Sketcher.Constraint("Horizontal", 22),
    Sketcher.Constraint("Vertical", 29),
    Sketcher.Constraint("Perpendicular", 0, 1),
    Sketcher.Constraint("Perpendicular", 1, 2),
    Sketcher.Constraint("Perpendicular", 2, 3),
    Sketcher.Constraint("Perpendicular", 3, 4),
    Sketcher.Constraint("Perpendicular", 4, 5),
    Sketcher.Constraint("Perpendicular", 5, 6),
    Sketcher.Constraint("Perpendicular", 6, 7),
    Sketcher.Constraint("Perpendicular", 7, 8),
    Sketcher.Constraint("Perpendicular", 8, 9),
    Sketcher.Constraint("Perpendicular", 9, 10),
    Sketcher.Constraint("Perpendicular", 10, 11),
    Sketcher.Constraint("Perpendicular", 30, 31),
    Sketcher.Constraint("Perpendicular", 31, 32),
    Sketcher.Constraint("Perpendicular", 32, 33),
    Sketcher.Constraint("Parallel", 33, 34),
    Sketcher.Constraint("Perpendicular", 34, 35),
    Sketcher.Constraint("Perpendicular", 35, 36),
    Sketcher.Constraint("Perpendicular", 36, 37),
    Sketcher.Constraint("Parallel", 37, 38),
    Sketcher.Constraint("Perpendicular", 38, 39),
    Sketcher.Constraint("Perpendicular", 39, 40),
    Sketcher.Constraint("Perpendicular", 40, 41),
    Sketcher.Constraint("Horizontal", 17, 2, 21, 2),
    Sketcher.Constraint("Horizontal", 15, 2, 23, 2),
    Sketcher.Constraint("Horizontal", 14, 2, 24, 2),
    Sketcher.Constraint("Horizontal", 13, 2, 25, 2),
    Sketcher.Constraint("Horizontal", 12, 2, 26, 2),
    Sketcher.Constraint("Horizontal", 20, 2, 27, 2),
    Sketcher.Constraint("Horizontal", 19, 2, 28, 2),
    Sketcher.Constraint("Horizontal", 18, 2, 29, 2),
    Sketcher.Constraint("Horizontal", 9, 2, 30, 2),
    Sketcher.Constraint("Horizontal", 8, 2, 31, 2),
    Sketcher.Constraint("Horizontal", 11, 2, 32, 2),
    Sketcher.Constraint("Horizontal", 4, 2, 34, 2),
    Sketcher.Constraint("Horizontal", 7, 2, 35, 2),
    Sketcher.Constraint("Horizontal", 6, 2, 36, 2),
    Sketcher.Constraint("Horizontal", 1, 2, 38, 2),
    Sketcher.Constraint("Horizontal", 0, 2, 39, 2),
    Sketcher.Constraint("Horizontal", 3, 2, 40, 2),
    Sketcher.Constraint("Equal", 17, 22),
    Sketcher.Constraint("Equal", 2, 4),
    Sketcher.Constraint("Equal", 3, 5),
    Sketcher.Constraint("Equal", 6, 8),
    Sketcher.Constraint("Equal", 7, 9),
    Sketcher.Constraint("Equal", 18, 21),
    Sketcher.Constraint("Equal", 16, 23),
    Sketcher.Constraint("Equal", 15, 24),
    Sketcher.Constraint("Equal", 14, 25),
    Sketcher.Constraint("Equal", 13, 26),
    Sketcher.Constraint("Equal", 12, 27),
    Sketcher.Constraint("Equal", 10, 30),
    Sketcher.Constraint("Distance", 0, Q("0.4 in")),
    Sketcher.Constraint("Distance", 20, Q("16.6266001 in")),
    Sketcher.Constraint("DistanceY", 19, 2, 19, 1, Q("41.031462 mm")),
    Sketcher.Constraint("DistanceY", -1, 1, 16, 2, Q("153.088499 mm")),
    Sketcher.Constraint("DistanceX", -1, 1, 39, 2, Q("521.0838 mm")),
    Sketcher.Constraint("DistanceX", 17, 2, 10, 2, Q("109.044602 mm")),
    Sketcher.Constraint("DistanceX", 26, 2, 21, 2, Q("258.820199 mm")),
    Sketcher.Constraint("Distance", 12, Q("79.22579 mm")),
    Sketcher.Constraint("Distance", 13, Q("21.989449 mm")),
    Sketcher.Constraint("Distance", 14, Q("90.512329 mm")),
    Sketcher.Constraint("Distance", 15, Q("57.899938 mm")),
    Sketcher.Constraint("Distance", 18, Q("19.779928 mm")),
    Sketcher.Constraint("DistanceX", 17, 1, 17, 2, Q("26.970517 mm")),
    Sketcher.Constraint("DistanceX", 0, 2, -1, 1, Q("602.079238 mm")),
    Sketcher.Constraint("DistanceX", 1, 2, -1, 1, Q("632.316409 mm")),
    Sketcher.Constraint("DistanceY", 1, 2, -1, 1, Q("185.130512 mm")),
    Sketcher.Constraint("DistanceY", 3, 2, -1, 1, Q("245.028569 mm")),
    Sketcher.Constraint("DistanceX", 4, 2, -1, 1, Q("662.55358 mm")),
    Sketcher.Constraint("DistanceY", 7, 2, -1, 1, Q("116.577141 mm")),
    Sketcher.Constraint("DistanceY", -1, 1, 8, 2, Q("7.546631 mm")),
    Sketcher.Constraint("DistanceX", 10, 2, -1, 1, Q("744.072869 mm")),
    Sketcher.Constraint("DistanceX", 13, 2, -1, 1, Q("581.920341 mm")),
    Sketcher.Constraint("DistanceX", 15, 2, -1, 1, Q("670.307311 mm")),
    Sketcher.Constraint("DistanceX", 20, 2, -1, 1, Q("660.407848 mm")),
    Sketcher.Constraint("DistanceY", 20, 2, -1, 1, Q("275.75518 mm")),
    Sketcher.Constraint("DistanceX", -1, 1, 22, 2, Q("799.092549 mm")),
    Sketcher.Constraint("DistanceX", -1, 1, 24, 2, Q("590.827068 mm")),
    Sketcher.Constraint("DistanceX", -1, 1, 32, 2, Q("632.840259 mm")),
    Sketcher.Constraint("DistanceX", -1, 1, 34, 2, Q("581.558142 mm")),
])
pocket8 = body.newObject("PartDesign::Pocket", "Pocket007")
pocket8.Profile = sketch9
pocket8.Type = "ThroughAll"
pocket8.Reversed = True

doc.recompute()
